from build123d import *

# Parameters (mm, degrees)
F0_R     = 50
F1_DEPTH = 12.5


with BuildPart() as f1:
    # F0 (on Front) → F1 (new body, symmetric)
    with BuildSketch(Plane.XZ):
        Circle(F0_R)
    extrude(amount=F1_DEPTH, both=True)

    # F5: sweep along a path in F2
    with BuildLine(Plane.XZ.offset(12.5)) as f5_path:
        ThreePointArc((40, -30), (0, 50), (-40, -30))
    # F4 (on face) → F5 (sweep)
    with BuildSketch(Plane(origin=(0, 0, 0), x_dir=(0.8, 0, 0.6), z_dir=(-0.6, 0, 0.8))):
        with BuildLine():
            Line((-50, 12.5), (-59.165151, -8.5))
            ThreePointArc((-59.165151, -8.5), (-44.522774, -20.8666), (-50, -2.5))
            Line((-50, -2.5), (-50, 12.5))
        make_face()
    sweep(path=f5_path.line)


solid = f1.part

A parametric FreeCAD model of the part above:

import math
import FreeCAD as App
import Part
import Sketcher

doc = App.newDocument("Part")
params = doc.addObject("Spreadsheet::Sheet", "Params")
for row, (alias, value) in enumerate([
    ("sketch1_diameter", "100 mm"),
    ("pad1_length", "25 mm"),
    ("sketch2_radius", "10 mm"),
    ("sketch2_height", "15 mm"),
    ("sketch3_radius", "50 mm"),
], start=1):
    params.set(f"A{row}", alias)
    params.set(f"B{row}", "=" + value)
    params.setAlias(f"B{row}", alias)

body = doc.addObject("PartDesign::Body", "Body")

# Sketch on XZ plane
sketch1 = doc.addObject("Sketcher::SketchObject", "Sketch")
body.addObject(sketch1)
sketch1.AttachmentSupport = (doc.XZ_Plane, [""])
sketch1.MapMode = "FlatFace"
sketch1.addGeometry(Part.Circle(App.Vector(0, 0, 0), App.Vector(0, 0, 1), 50), False)
sketch1.addConstraint(Sketcher.Constraint("Coincident", 0, 3, -1, 1))
sketch1.addConstraint(Sketcher.Constraint("Diameter", 0, 100.0))
sketch1.setExpression("Constraints[1]", "Params.sketch1_diameter")
pad1 = doc.addObject("PartDesign::Pad", "Pad")
body.addObject(pad1)
pad1.Profile = sketch1
pad1.setExpression("Length", "Params.pad1_length")
pad1.Midplane = True

# Sketch on an angled plane
sketch2 = doc.addObject("Sketcher::SketchObject", "Sketch001")
body.addObject(sketch2)
sketch2.Placement = App.Placement(App.Vector(0, 0, 0), App.Rotation(App.Vector(0.8, 0, 0.6), App.Vector(0, 1, 0), App.Vector(-0.6, 0, 0.8), "ZXY"))
sketch2.addGeometry(Part.LineSegment(App.Vector(-50, 12.5, 0), App.Vector(-59.165151, -8.5, 0)), False)
sketch2.addGeometry(Part.ArcOfCircle(Part.Circle(App.Vector(-50, -12.5, 0), App.Vector(0, 0, 1), 10), math.radians(156.421822), math.radians(450.000002)), False)
sketch2.addGeometry(Part.LineSegment(App.Vector(-50, -2.5, 0), App.Vector(-50, 12.5, 0)), False)
sketch2.addConstraint(Sketcher.Constraint("Tangent", 0, 2, 1, 1))
sketch2.addConstraint(Sketcher.Constraint("Coincident", 1, 2, 2, 1))
sketch2.addConstraint(Sketcher.Constraint("Coincident", 2, 2, 0, 1))
sketch2.addConstraint(Sketcher.Constraint("Vertical", 2))
sketch2.addConstraint(Sketcher.Constraint("Radius", 1, 10.0))
sketch2.addConstraint(Sketcher.Constraint("DistanceY", 2, 1, 2, 2, 15.0))
sketch2.addConstraint(Sketcher.Constraint("DistanceX", 1, 3, -1, 1, 50.0))
sketch2.addConstraint(Sketcher.Constraint("DistanceX", 1, 2, -1, 1, 50.0))
sketch2.addConstraint(Sketcher.Constraint("DistanceY", 1, 3, -1, 1, 12.5))
sketch2.setExpression("Constraints[4]", "Params.sketch2_radius")
sketch2.setExpression("Constraints[5]", "Params.sketch2_height")

# Sketch on XZ plane
sketch3 = doc.addObject("Sketcher::SketchObject", "Sketch002")
body.addObject(sketch3)
sketch3.AttachmentSupport = (doc.XZ_Plane, [""])
sketch3.MapMode = "FlatFace"
sketch3.AttachmentOffset = App.Placement(App.Vector(0, 0, 12.5), App.Rotation())
sketch3.addGeometry(Part.ArcOfCircle(Part.Circle(App.Vector(0, 0, 0), App.Vector(0, 0, 1), 50), math.radians(-36.869898), math.radians(216.869898)), False)
sketch3.addConstraint(Sketcher.Constraint("Coincident", 0, 3, -1, 1))
sketch3.addConstraint(Sketcher.Constraint("Radius", 0, 50.0))
sketch3.addConstraint(Sketcher.Constraint("DistanceX", -1, 1, 0, 1, 40.0))
sketch3.addConstraint(Sketcher.Constraint("DistanceX", 0, 2, -1, 1, 40.0))
sketch3.setExpression("Constraints[1]", "Params.sketch3_radius")
doc.recompute()

additivepipe = doc.addObject("PartDesign::AdditivePipe", "AdditivePipe")
body.addObject(additivepipe)
additivepipe.Profile = sketch2
additivepipe.Spine = (sketch3, ["Edge1"])

doc.recompute()
